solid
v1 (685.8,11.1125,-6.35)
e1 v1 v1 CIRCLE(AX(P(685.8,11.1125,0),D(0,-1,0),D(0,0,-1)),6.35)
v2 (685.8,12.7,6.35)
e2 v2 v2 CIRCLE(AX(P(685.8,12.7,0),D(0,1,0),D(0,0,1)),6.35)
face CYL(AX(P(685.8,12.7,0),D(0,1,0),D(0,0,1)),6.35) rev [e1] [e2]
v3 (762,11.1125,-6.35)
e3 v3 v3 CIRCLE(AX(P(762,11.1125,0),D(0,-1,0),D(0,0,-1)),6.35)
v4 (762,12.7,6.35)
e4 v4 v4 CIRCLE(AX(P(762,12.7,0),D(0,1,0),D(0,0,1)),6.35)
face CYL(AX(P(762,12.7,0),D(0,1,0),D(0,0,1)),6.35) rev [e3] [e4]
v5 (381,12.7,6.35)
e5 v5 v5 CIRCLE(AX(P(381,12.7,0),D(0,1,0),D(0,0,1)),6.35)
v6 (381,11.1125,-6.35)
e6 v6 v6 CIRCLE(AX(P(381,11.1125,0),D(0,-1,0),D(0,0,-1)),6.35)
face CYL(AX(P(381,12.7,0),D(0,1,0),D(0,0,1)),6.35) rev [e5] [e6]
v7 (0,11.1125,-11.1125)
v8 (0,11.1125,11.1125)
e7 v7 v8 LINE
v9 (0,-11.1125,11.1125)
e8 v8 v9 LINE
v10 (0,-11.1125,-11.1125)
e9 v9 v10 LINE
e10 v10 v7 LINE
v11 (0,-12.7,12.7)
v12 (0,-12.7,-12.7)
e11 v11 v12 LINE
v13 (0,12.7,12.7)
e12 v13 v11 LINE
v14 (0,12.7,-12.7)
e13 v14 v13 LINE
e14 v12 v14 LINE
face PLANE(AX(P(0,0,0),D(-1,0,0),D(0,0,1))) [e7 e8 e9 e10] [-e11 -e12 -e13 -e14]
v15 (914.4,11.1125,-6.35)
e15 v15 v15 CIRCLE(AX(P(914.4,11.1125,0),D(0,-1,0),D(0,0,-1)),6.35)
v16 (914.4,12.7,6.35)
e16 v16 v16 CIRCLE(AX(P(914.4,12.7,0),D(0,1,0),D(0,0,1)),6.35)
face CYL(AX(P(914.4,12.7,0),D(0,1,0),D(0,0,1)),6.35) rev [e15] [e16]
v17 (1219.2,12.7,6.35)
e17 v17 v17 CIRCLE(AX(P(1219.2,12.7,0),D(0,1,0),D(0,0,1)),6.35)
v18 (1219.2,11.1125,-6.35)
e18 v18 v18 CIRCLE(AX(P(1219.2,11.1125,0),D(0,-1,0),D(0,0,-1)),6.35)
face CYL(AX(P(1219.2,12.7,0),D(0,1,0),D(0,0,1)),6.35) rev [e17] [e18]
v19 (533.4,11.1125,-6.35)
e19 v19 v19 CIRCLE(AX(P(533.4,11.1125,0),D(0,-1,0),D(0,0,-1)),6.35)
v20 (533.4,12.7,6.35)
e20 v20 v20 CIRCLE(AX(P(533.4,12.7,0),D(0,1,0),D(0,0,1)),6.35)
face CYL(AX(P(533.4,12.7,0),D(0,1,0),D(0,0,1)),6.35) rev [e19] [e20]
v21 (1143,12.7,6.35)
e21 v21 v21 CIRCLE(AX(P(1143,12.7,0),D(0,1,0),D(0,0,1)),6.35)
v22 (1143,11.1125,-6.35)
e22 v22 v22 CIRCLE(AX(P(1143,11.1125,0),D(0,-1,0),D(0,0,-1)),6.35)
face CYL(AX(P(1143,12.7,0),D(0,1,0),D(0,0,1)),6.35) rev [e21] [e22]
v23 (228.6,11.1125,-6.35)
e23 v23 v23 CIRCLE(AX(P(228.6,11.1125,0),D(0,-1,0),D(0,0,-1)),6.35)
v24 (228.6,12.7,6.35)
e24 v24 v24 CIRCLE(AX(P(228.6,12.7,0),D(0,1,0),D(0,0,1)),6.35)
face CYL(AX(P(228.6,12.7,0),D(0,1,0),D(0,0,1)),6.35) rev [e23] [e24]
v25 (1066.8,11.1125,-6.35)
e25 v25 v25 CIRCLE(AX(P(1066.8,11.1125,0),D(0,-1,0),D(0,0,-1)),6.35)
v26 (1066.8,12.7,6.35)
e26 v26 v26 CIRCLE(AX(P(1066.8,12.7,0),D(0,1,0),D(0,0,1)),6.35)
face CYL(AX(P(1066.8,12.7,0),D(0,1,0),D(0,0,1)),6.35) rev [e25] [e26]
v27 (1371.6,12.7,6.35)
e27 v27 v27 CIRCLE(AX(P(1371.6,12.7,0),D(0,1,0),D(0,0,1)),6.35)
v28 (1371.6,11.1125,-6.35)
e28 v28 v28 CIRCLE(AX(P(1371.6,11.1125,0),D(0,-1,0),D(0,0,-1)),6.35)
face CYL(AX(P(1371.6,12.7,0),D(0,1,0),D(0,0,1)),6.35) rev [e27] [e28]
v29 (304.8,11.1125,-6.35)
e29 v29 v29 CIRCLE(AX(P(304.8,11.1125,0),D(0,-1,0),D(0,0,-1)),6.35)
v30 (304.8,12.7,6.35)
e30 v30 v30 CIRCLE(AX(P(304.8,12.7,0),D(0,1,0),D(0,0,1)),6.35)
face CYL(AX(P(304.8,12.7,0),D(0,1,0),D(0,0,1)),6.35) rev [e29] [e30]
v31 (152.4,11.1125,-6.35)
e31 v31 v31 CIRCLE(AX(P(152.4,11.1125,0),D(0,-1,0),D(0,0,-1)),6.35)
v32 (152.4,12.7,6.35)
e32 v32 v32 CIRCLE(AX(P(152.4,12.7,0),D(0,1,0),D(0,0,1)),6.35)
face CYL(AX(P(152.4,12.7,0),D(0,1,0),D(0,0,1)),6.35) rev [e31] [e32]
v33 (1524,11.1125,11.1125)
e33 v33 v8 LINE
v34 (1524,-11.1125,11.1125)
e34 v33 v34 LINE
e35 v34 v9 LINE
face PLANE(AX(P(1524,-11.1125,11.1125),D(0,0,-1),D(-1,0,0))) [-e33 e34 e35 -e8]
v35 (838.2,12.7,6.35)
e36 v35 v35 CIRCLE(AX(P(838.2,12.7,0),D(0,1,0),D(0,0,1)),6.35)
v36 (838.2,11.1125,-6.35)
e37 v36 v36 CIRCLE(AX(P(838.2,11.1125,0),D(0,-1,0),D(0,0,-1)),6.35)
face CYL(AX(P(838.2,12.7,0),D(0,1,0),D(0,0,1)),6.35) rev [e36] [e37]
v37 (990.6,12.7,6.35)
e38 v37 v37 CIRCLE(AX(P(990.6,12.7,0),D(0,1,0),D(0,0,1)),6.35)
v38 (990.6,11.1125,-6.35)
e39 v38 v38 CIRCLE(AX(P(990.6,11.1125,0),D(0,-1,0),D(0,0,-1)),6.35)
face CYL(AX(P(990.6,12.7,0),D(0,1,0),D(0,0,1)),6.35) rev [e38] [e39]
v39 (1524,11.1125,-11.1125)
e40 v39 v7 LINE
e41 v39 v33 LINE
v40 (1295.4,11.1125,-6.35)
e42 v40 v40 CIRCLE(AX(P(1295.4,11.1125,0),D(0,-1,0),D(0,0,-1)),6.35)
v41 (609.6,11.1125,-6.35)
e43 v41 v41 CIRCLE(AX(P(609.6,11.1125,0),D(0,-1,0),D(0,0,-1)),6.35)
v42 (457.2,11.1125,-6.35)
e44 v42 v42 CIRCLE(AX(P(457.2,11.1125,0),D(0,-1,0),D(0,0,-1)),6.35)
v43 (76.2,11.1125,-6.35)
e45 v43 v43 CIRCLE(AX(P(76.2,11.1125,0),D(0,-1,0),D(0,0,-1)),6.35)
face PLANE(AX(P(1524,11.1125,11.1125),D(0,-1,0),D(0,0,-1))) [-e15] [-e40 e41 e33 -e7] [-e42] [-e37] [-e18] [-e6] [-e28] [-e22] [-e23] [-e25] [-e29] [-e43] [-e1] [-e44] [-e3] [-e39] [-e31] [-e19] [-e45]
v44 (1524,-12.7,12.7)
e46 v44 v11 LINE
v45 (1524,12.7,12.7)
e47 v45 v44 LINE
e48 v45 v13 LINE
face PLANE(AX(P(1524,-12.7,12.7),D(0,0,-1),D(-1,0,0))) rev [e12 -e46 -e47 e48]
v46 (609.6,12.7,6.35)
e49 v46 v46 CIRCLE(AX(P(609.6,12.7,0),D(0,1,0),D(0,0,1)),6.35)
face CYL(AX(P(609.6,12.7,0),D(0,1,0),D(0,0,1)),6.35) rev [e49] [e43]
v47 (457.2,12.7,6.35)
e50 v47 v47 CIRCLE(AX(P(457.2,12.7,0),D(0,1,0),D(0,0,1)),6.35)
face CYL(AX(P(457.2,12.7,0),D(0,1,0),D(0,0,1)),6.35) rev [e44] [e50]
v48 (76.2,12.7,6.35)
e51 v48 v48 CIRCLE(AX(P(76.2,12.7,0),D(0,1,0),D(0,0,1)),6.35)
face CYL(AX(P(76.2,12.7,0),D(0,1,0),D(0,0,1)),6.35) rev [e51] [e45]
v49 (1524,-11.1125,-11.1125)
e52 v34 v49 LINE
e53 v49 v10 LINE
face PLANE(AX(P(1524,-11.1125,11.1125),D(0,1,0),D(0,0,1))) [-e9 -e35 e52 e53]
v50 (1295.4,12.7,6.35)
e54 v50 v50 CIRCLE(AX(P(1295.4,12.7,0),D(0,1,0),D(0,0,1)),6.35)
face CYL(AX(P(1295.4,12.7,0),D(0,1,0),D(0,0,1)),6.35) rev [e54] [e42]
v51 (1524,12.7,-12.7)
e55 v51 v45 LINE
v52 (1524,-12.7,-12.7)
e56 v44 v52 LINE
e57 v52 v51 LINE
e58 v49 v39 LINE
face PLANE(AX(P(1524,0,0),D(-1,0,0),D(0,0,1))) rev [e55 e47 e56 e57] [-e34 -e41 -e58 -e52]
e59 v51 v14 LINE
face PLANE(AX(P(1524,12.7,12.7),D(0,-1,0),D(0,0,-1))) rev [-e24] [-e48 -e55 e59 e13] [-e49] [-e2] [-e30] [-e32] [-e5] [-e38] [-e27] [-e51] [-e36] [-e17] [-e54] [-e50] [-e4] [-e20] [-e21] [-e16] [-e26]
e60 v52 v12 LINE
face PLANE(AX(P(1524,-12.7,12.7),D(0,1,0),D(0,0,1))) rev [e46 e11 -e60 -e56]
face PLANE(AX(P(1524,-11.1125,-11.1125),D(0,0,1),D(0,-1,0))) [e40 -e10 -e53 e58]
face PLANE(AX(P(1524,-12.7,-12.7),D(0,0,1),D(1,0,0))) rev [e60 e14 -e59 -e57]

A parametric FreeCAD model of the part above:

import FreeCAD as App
import Part
import Sketcher
from FreeCAD import Vector
Q = App.Units.Quantity

doc = App.newDocument("Part")
params = doc.addObject("Spreadsheet::Sheet", "Params")
for row, (alias, value) in enumerate([
    ("sketch1_width", "1 in"),
    ("sketch1_width2", "0.875 in"),
    ("pad1_length", "60 in"),
    ("sketch2_diameter", "0.5 in"),
    ("hole_diameter", "0.5 in"),
    ("hole_depth", "0.0625 in"),
    ("linearpattern_pitch", "3 in"),
], start=1):
    params.set(f"A{row}", alias)
    params.set(f"B{row}", "=" + value)
    params.setAlias(f"B{row}", alias)

body = doc.addObject("PartDesign::Body", "Body")

sketch1 = body.newObject("Sketcher::SketchObject", "Sketch")
sketch1.AttachmentSupport = (doc.getObject("YZ_Plane"), [""])
sketch1.MapMode = "FlatFace"
sketch1.addGeometry(Part.LineSegment(Vector(12.7, 12.7, 0), Vector(-12.7, 12.7, 0)), False)
sketch1.addGeometry(Part.LineSegment(Vector(-12.7, 12.7, 0), Vector(-12.7, -12.7, 0)), False)
sketch1.addGeometry(Part.LineSegment(Vector(-12.7, -12.7, 0), Vector(12.7, -12.7, 0)), False)
sketch1.addGeometry(Part.LineSegment(Vector(12.7, -12.7, 0), Vector(12.7, 12.7, 0)), False)
sketch1.addGeometry(Part.LineSegment(Vector(-11.1125, -11.1125, 0), Vector(-11.1125, 11.1125, 0)), False)
sketch1.addGeometry(Part.LineSegment(Vector(-11.1125, 11.1125, 0), Vector(11.1125, 11.1125, 0)), False)
sketch1.addGeometry(Part.LineSegment(Vector(11.1125, 11.1125, 0), Vector(11.1125, -11.1125, 0)), False)
sketch1.addGeometry(Part.LineSegment(Vector(11.1125, -11.1125, 0), Vector(-11.1125, -11.1125, 0)), False)
sketch1.addConstraint(Sketcher.Constraint("Coincident", 0, 2, 1, 1))
sketch1.addConstraint(Sketcher.Constraint("Coincident", 1, 2, 2, 1))
sketch1.addConstraint(Sketcher.Constraint("Coincident", 2, 2, 3, 1))
sketch1.addConstraint(Sketcher.Constraint("Coincident", 3, 2, 0, 1))
sketch1.addConstraint(Sketcher.Constraint("Coincident", 4, 2, 5, 1))
sketch1.addConstraint(Sketcher.Constraint("Coincident", 5, 2, 6, 1))
sketch1.addConstraint(Sketcher.Constraint("Coincident", 6, 2, 7, 1))
sketch1.addConstraint(Sketcher.Constraint("Coincident", 7, 2, 4, 1))
sketch1.addConstraint(Sketcher.Constraint("Horizontal", 0))
sketch1.addConstraint(Sketcher.Constraint("Vertical", 1))
sketch1.addConstraint(Sketcher.Constraint("Horizontal", 2))
sketch1.addConstraint(Sketcher.Constraint("Vertical", 3))
sketch1.addConstraint(Sketcher.Constraint("Vertical", 4))
sketch1.addConstraint(Sketcher.Constraint("Horizontal", 5))
sketch1.addConstraint(Sketcher.Constraint("Vertical", 6))
sketch1.addConstraint(Sketcher.Constraint("Horizontal", 7))
sketch1.addConstraint(Sketcher.Constraint("Symmetric", 0, 2, 2, 2, -1, 1))
sketch1.addConstraint(Sketcher.Constraint("Symmetric", 4, 2, 6, 2, -1, 1))
sketch1.addConstraint(Sketcher.Constraint("Equal", 2, 1))
sketch1.addConstraint(Sketcher.Constraint("Equal", 7, 4))
sketch1.addConstraint(Sketcher.Constraint("DistanceX", 0, 2, 0, 1, Q("1 in")))
sketch1.addConstraint(Sketcher.Constraint("DistanceX", 5, 1, 5, 2, Q("0.875 in")))
sketch1.setExpression("Constraints[20]", "Params.sketch1_width")
sketch1.setExpression("Constraints[21]", "Params.sketch1_width2")
pad1 = body.newObject("PartDesign::Pad", "Pad")
pad1.Profile = sketch1
pad1.setExpression("Length", "Params.pad1_length")

sketch2 = body.newObject("Sketcher::SketchObject", "Sketch001")
sketch2.AttachmentSupport = (doc.getObject("XZ_Plane"), [""])
sketch2.MapMode = "FlatFace"
sketch2.AttachmentOffset = App.Placement(Vector(0, 0, -0.5 * 25.4), App.Rotation())
sketch2.addGeometry(Part.Circle(Vector(1371.6, 0, 0), Vector(0, 0, 1), 6.35), False)
sketch2.addConstraint(Sketcher.Constraint("PointOnObject", 0, 3, -1))
sketch2.addConstraint(Sketcher.Constraint("Diameter", 0, Q("0.5 in")))
sketch2.addConstraint(Sketcher.Constraint("DistanceX", -1, 1, 0, 3, Q("54 in")))
sketch2.setExpression("Constraints[1]", "Params.sketch2_diameter")
doc.recompute()
hole = body.newObject("PartDesign::Hole", "Hole")
hole.Profile = sketch2
hole.ThreadType = "None"
hole.setExpression("Diameter", "Params.hole_diameter")
hole.DepthType = "Dimension"
hole.setExpression("Depth", "Params.hole_depth")
hole.DrillPoint = "Flat"
hole.Reversed = True
doc.recompute()

linearpattern = body.newObject("PartDesign::LinearPattern", "LinearPattern")
linearpattern.Originals = [hole]
linearpattern.Direction = (doc.getObject("X_Axis"), [""])
linearpattern.Mode = "offset"
linearpattern.setExpression("Offset", "Params.linearpattern_pitch")
linearpattern.Occurrences = 18
linearpattern.Reversed = True
body.Tip = linearpattern

doc.recompute()
